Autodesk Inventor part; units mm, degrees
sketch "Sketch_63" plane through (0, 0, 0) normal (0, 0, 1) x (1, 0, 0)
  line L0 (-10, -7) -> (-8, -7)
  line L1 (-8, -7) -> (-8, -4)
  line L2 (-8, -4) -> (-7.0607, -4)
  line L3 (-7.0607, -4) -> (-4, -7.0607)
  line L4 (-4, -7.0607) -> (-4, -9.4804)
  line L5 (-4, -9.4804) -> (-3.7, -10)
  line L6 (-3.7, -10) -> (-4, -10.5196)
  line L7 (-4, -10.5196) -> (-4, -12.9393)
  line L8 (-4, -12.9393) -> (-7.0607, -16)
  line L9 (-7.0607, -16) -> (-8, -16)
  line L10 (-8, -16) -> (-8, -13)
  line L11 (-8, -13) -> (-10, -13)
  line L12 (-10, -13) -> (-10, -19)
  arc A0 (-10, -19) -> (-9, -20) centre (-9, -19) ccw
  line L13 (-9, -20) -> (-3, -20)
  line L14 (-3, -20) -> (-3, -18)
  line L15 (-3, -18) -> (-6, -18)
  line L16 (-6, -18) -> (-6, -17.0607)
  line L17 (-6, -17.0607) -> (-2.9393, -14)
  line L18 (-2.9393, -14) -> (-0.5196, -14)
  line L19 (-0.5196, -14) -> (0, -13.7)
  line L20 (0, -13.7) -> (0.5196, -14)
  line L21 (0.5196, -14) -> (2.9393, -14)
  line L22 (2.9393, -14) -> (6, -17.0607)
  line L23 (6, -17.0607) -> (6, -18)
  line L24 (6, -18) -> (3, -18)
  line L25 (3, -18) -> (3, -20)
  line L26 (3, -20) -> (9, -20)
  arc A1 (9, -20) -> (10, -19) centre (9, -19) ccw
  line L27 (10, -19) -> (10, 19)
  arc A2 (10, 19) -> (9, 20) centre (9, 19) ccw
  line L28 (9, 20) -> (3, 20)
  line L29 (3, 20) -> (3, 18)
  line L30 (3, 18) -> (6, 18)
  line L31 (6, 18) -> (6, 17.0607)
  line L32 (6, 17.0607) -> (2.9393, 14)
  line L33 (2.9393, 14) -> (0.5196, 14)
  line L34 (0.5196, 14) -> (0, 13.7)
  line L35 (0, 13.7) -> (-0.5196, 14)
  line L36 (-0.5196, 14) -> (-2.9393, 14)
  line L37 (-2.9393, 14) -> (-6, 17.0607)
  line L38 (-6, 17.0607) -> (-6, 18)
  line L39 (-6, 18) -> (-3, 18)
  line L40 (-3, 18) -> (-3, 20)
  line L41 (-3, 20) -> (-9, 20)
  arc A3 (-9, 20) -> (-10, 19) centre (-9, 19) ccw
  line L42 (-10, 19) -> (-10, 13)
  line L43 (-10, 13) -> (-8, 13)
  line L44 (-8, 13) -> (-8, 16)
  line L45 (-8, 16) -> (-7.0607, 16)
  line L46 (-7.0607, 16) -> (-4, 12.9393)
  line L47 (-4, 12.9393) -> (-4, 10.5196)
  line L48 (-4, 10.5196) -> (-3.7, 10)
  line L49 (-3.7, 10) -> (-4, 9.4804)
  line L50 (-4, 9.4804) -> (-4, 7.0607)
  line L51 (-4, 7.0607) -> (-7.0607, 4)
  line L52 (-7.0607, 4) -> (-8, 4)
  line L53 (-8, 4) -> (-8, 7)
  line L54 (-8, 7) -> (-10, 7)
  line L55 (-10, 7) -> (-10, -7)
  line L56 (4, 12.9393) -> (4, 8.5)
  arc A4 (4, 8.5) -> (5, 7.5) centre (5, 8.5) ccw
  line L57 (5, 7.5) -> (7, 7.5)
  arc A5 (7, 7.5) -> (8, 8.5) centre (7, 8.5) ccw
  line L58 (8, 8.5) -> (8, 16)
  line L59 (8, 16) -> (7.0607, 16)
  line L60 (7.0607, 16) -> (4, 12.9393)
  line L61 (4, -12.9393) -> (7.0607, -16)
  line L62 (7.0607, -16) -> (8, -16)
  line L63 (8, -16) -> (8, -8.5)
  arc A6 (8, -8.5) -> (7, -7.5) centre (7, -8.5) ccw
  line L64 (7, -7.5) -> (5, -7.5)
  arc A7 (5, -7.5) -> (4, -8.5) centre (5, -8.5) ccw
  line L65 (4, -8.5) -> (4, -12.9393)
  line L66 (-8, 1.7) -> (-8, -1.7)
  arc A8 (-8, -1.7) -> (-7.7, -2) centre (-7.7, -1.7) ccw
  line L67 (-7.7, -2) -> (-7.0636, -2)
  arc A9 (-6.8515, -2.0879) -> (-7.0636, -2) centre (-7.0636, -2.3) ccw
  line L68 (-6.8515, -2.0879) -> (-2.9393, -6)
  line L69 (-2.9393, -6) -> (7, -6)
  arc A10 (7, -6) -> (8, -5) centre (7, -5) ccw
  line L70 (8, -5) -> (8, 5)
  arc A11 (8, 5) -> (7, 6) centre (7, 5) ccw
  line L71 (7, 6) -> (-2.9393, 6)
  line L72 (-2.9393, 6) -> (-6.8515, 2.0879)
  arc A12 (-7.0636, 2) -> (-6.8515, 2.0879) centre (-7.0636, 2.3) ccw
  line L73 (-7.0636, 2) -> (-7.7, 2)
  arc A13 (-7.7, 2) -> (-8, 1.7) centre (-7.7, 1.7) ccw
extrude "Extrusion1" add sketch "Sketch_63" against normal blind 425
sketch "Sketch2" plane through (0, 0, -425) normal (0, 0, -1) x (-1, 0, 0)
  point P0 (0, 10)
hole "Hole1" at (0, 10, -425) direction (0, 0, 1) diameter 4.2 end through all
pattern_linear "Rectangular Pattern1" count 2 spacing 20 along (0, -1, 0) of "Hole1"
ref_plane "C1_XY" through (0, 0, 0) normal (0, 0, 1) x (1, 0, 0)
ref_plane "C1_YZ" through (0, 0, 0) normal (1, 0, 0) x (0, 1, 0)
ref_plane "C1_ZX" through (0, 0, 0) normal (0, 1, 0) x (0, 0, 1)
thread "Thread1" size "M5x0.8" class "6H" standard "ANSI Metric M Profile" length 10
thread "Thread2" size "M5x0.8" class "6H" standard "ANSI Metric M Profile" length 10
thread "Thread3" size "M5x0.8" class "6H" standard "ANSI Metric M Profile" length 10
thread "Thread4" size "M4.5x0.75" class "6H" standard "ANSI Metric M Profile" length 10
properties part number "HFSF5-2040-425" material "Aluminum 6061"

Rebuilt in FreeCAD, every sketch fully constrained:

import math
import FreeCAD as App
import Part
import Sketcher
Q = App.Units.Quantity

doc = App.newDocument("Part")
body = doc.addObject("PartDesign::Body", "Body")

sketch1 = body.newObject("Sketcher::SketchObject", "Sketch")
sketch1.AttachmentSupport = (doc.getObject("XY_Plane"), [""])
sketch1.MapMode = "FlatFace"
sketch1.addGeometry(Part.LineSegment(App.Vector(-10, 7, 0), App.Vector(-10, -7, 0)), False)
sketch1.addGeometry(Part.LineSegment(App.Vector(-10, -7, 0), App.Vector(-8, -7, 0)), False)
sketch1.addGeometry(Part.LineSegment(App.Vector(-8, -7, 0), App.Vector(-8, -4, 0)), False)
sketch1.addGeometry(Part.LineSegment(App.Vector(-8, -4, 0), App.Vector(-7.06, -4, 0)), False)
sketch1.addGeometry(Part.LineSegment(App.Vector(-7.06, -4, 0), App.Vector(-4, -7.06, 0)), False)
sketch1.addGeometry(Part.LineSegment(App.Vector(-4, -7.06, 0), App.Vector(-4, -9.48, 0)), False)
sketch1.addGeometry(Part.LineSegment(App.Vector(-4, -9.48, 0), App.Vector(-3.7, -10, 0)), False)
sketch1.addGeometry(Part.LineSegment(App.Vector(-3.7, -10, 0), App.Vector(-4, -10.52, 0)), False)
sketch1.addGeometry(Part.LineSegment(App.Vector(-4, -10.52, 0), App.Vector(-4, -12.94, 0)), False)
sketch1.addGeometry(Part.LineSegment(App.Vector(-4, -12.94, 0), App.Vector(-7.06, -16, 0)), False)
sketch1.addGeometry(Part.LineSegment(App.Vector(-7.06, -16, 0), App.Vector(-8, -16, 0)), False)
sketch1.addGeometry(Part.LineSegment(App.Vector(-8, -16, 0), App.Vector(-8, -13, 0)), False)
sketch1.addGeometry(Part.LineSegment(App.Vector(-8, -13, 0), App.Vector(-10, -13, 0)), False)
sketch1.addGeometry(Part.LineSegment(App.Vector(-10, -13, 0), App.Vector(-10, -19, 0)), False)
sketch1.addGeometry(Part.ArcOfCircle(Part.Circle(App.Vector(-9, -19, 0), App.Vector(0, 0, 1), 1), math.radians(180), math.radians(270)), False)
sketch1.addGeometry(Part.LineSegment(App.Vector(-9, -20, 0), App.Vector(-3, -20, 0)), False)
sketch1.addGeometry(Part.LineSegment(App.Vector(-3, -20, 0), App.Vector(-3, -18, 0)), False)
sketch1.addGeometry(Part.LineSegment(App.Vector(-3, -18, 0), App.Vector(-6, -18, 0)), False)
sketch1.addGeometry(Part.LineSegment(App.Vector(-6, -18, 0), App.Vector(-6, -17.06, 0)), False)
sketch1.addGeometry(Part.LineSegment(App.Vector(-6, -17.06, 0), App.Vector(-2.94, -14, 0)), False)
sketch1.addGeometry(Part.LineSegment(App.Vector(-2.94, -14, 0), App.Vector(-0.52, -14, 0)), False)
sketch1.addGeometry(Part.LineSegment(App.Vector(-0.52, -14, 0), App.Vector(0, -13.7, 0)), False)
sketch1.addGeometry(Part.LineSegment(App.Vector(0, -13.7, 0), App.Vector(0.52, -14, 0)), False)
sketch1.addGeometry(Part.LineSegment(App.Vector(0.52, -14, 0), App.Vector(2.94, -14, 0)), False)
sketch1.addGeometry(Part.LineSegment(App.Vector(2.94, -14, 0), App.Vector(6, -17.06, 0)), False)
sketch1.addGeometry(Part.LineSegment(App.Vector(6, -17.06, 0), App.Vector(6, -18, 0)), False)
sketch1.addGeometry(Part.LineSegment(App.Vector(6, -18, 0), App.Vector(3, -18, 0)), False)
sketch1.addGeometry(Part.LineSegment(App.Vector(3, -18, 0), App.Vector(3, -20, 0)), False)
sketch1.addGeometry(Part.LineSegment(App.Vector(3, -20, 0), App.Vector(9, -20, 0)), False)
sketch1.addGeometry(Part.ArcOfCircle(Part.Circle(App.Vector(9, -19, 0), App.Vector(0, 0, 1), 1), math.radians(-90), math.radians(0)), False)
sketch1.addGeometry(Part.LineSegment(App.Vector(10, -19, 0), App.Vector(10, 19, 0)), False)
sketch1.addGeometry(Part.ArcOfCircle(Part.Circle(App.Vector(9, 19, 0), App.Vector(0, 0, 1), 1), math.radians(0), math.radians(90)), False)
sketch1.addGeometry(Part.LineSegment(App.Vector(9, 20, 0), App.Vector(3, 20, 0)), False)
sketch1.addGeometry(Part.LineSegment(App.Vector(3, 20, 0), App.Vector(3, 18, 0)), False)
sketch1.addGeometry(Part.LineSegment(App.Vector(3, 18, 0), App.Vector(6, 18, 0)), False)
sketch1.addGeometry(Part.LineSegment(App.Vector(6, 18, 0), App.Vector(6, 17.06, 0)), False)
sketch1.addGeometry(Part.LineSegment(App.Vector(6, 17.06, 0), App.Vector(2.94, 14, 0)), False)
sketch1.addGeometry(Part.LineSegment(App.Vector(2.94, 14, 0), App.Vector(0.52, 14, 0)), False)
sketch1.addGeometry(Part.LineSegment(App.Vector(0.52, 14, 0), App.Vector(0, 13.7, 0)), False)
sketch1.addGeometry(Part.LineSegment(App.Vector(0, 13.7, 0), App.Vector(-0.52, 14, 0)), False)
sketch1.addGeometry(Part.LineSegment(App.Vector(-0.52, 14, 0), App.Vector(-2.94, 14, 0)), False)
sketch1.addGeometry(Part.LineSegment(App.Vector(-2.94, 14, 0), App.Vector(-6, 17.06, 0)), False)
sketch1.addGeometry(Part.LineSegment(App.Vector(-6, 17.06, 0), App.Vector(-6, 18, 0)), False)
sketch1.addGeometry(Part.LineSegment(App.Vector(-6, 18, 0), App.Vector(-3, 18, 0)), False)
sketch1.addGeometry(Part.LineSegment(App.Vector(-3, 18, 0), App.Vector(-3, 20, 0)), False)
sketch1.addGeometry(Part.LineSegment(App.Vector(-3, 20, 0), App.Vector(-9, 20, 0)), False)
sketch1.addGeometry(Part.ArcOfCircle(Part.Circle(App.Vector(-9, 19, 0), App.Vector(0, 0, 1), 1), math.radians(90), math.radians(180)), False)
sketch1.addGeometry(Part.LineSegment(App.Vector(-10, 19, 0), App.Vector(-10, 13, 0)), False)
sketch1.addGeometry(Part.LineSegment(App.Vector(-10, 13, 0), App.Vector(-8, 13, 0)), False)
sketch1.addGeometry(Part.LineSegment(App.Vector(-8, 13, 0), App.Vector(-8, 16, 0)), False)
sketch1.addGeometry(Part.LineSegment(App.Vector(-8, 16, 0), App.Vector(-7.06, 16, 0)), False)
sketch1.addGeometry(Part.LineSegment(App.Vector(-7.06, 16, 0), App.Vector(-4, 12.94, 0)), False)
sketch1.addGeometry(Part.LineSegment(App.Vector(-4, 12.94, 0), App.Vector(-4, 10.52, 0)), False)
sketch1.addGeometry(Part.LineSegment(App.Vector(-4, 10.52, 0), App.Vector(-3.7, 10, 0)), False)
sketch1.addGeometry(Part.LineSegment(App.Vector(-3.7, 10, 0), App.Vector(-4, 9.48, 0)), False)
sketch1.addGeometry(Part.LineSegment(App.Vector(-4, 9.48, 0), App.Vector(-4, 7.06, 0)), False)
sketch1.addGeometry(Part.LineSegment(App.Vector(-4, 7.06, 0), App.Vector(-7.06, 4, 0)), False)
sketch1.addGeometry(Part.LineSegment(App.Vector(-7.06, 4, 0), App.Vector(-8, 4, 0)), False)
sketch1.addGeometry(Part.LineSegment(App.Vector(-8, 4, 0), App.Vector(-8, 7, 0)), False)
sketch1.addGeometry(Part.LineSegment(App.Vector(-8, 7, 0), App.Vector(-10, 7, 0)), False)
sketch1.addGeometry(Part.LineSegment(App.Vector(7.06, -16, 0), App.Vector(4, -12.94, 0)), False)
sketch1.addGeometry(Part.LineSegment(App.Vector(4, -12.94, 0), App.Vector(4, -8.5, 0)), False)
sketch1.addGeometry(Part.ArcOfCircle(Part.Circle(App.Vector(5, -8.5, 0), App.Vector(0, 0, 1), 1), math.radians(90), math.radians(180)), False)
sketch1.addGeometry(Part.LineSegment(App.Vector(5, -7.5, 0), App.Vector(7, -7.5, 0)), False)
sketch1.addGeometry(Part.ArcOfCircle(Part.Circle(App.Vector(7, -8.5, 0), App.Vector(0, 0, 1), 1), math.radians(0), math.radians(90)), False)
sketch1.addGeometry(Part.LineSegment(App.Vector(8, -8.5, 0), App.Vector(8, -16, 0)), False)
sketch1.addGeometry(Part.LineSegment(App.Vector(8, -16, 0), App.Vector(7.06, -16, 0)), False)
sketch1.addGeometry(Part.LineSegment(App.Vector(-8, -1.7, 0), App.Vector(-8, 1.7, 0)), False)
sketch1.addGeometry(Part.ArcOfCircle(Part.Circle(App.Vector(-7.7, 1.7, 0), App.Vector(0, 0, 1), 0.3), math.radians(90), math.radians(180)), False)
sketch1.addGeometry(Part.LineSegment(App.Vector(-7.7, 2, 0), App.Vector(-7.06, 2, 0)), False)
sketch1.addGeometry(Part.ArcOfCircle(Part.Circle(App.Vector(-7.06, 2.3, 0), App.Vector(0, 0, 1), 0.3), math.radians(-90), math.radians(-45)), False)
sketch1.addGeometry(Part.LineSegment(App.Vector(-6.85, 2.09, 0), App.Vector(-2.94, 6, 0)), False)
sketch1.addGeometry(Part.LineSegment(App.Vector(-2.94, 6, 0), App.Vector(7, 6, 0)), False)
sketch1.addGeometry(Part.ArcOfCircle(Part.Circle(App.Vector(7, 5, 0), App.Vector(0, 0, 1), 1), math.radians(0), math.radians(90)), False)
sketch1.addGeometry(Part.LineSegment(App.Vector(8, 5, 0), App.Vector(8, -5, 0)), False)
sketch1.addGeometry(Part.ArcOfCircle(Part.Circle(App.Vector(7, -5, 0), App.Vector(0, 0, 1), 1), math.radians(-90), math.radians(0)), False)
sketch1.addGeometry(Part.LineSegment(App.Vector(7, -6, 0), App.Vector(-2.94, -6, 0)), False)
sketch1.addGeometry(Part.LineSegment(App.Vector(-2.94, -6, 0), App.Vector(-6.85, -2.09, 0)), False)
sketch1.addGeometry(Part.ArcOfCircle(Part.Circle(App.Vector(-7.06, -2.3, 0), App.Vector(0, 0, 1), 0.3), math.radians(45), math.radians(90)), False)
sketch1.addGeometry(Part.LineSegment(App.Vector(-7.06, -2, 0), App.Vector(-7.7, -2, 0)), False)
sketch1.addGeometry(Part.ArcOfCircle(Part.Circle(App.Vector(-7.7, -1.7, 0), App.Vector(0, 0, 1), 0.3), math.radians(180), math.radians(270)), False)
sketch1.addGeometry(Part.LineSegment(App.Vector(4, 8.5, 0), App.Vector(4, 12.94, 0)), False)
sketch1.addGeometry(Part.LineSegment(App.Vector(4, 12.94, 0), App.Vector(7.06, 16, 0)), False)
sketch1.addGeometry(Part.LineSegment(App.Vector(7.06, 16, 0), App.Vector(8, 16, 0)), False)
sketch1.addGeometry(Part.LineSegment(App.Vector(8, 16, 0), App.Vector(8, 8.5, 0)), False)
sketch1.addGeometry(Part.ArcOfCircle(Part.Circle(App.Vector(7, 8.5, 0), App.Vector(0, 0, 1), 1), math.radians(-90), math.radians(0)), False)
sketch1.addGeometry(Part.LineSegment(App.Vector(7, 7.5, 0), App.Vector(5, 7.5, 0)), False)
sketch1.addGeometry(Part.ArcOfCircle(Part.Circle(App.Vector(5, 8.5, 0), App.Vector(0, 0, 1), 1), math.radians(180), math.radians(270)), False)
sketch1.addConstraint(Sketcher.Constraint("Coincident", 0, 2, 1, 1))
sketch1.addConstraint(Sketcher.Constraint("Coincident", 1, 2, 2, 1))
sketch1.addConstraint(Sketcher.Constraint("Coincident", 2, 2, 3, 1))
sketch1.addConstraint(Sketcher.Constraint("Coincident", 3, 2, 4, 1))
sketch1.addConstraint(Sketcher.Constraint("Coincident", 4, 2, 5, 1))
sketch1.addConstraint(Sketcher.Constraint("Coincident", 5, 2, 6, 1))
sketch1.addConstraint(Sketcher.Constraint("Coincident", 6, 2, 7, 1))
sketch1.addConstraint(Sketcher.Constraint("Coincident", 7, 2, 8, 1))
sketch1.addConstraint(Sketcher.Constraint("Coincident", 8, 2, 9, 1))
sketch1.addConstraint(Sketcher.Constraint("Coincident", 9, 2, 10, 1))
sketch1.addConstraint(Sketcher.Constraint("Coincident", 10, 2, 11, 1))
sketch1.addConstraint(Sketcher.Constraint("Coincident", 11, 2, 12, 1))
sketch1.addConstraint(Sketcher.Constraint("Coincident", 12, 2, 13, 1))
sketch1.addConstraint(Sketcher.Constraint("Tangent", 13, 2, 14, 1))
sketch1.addConstraint(Sketcher.Constraint("Tangent", 14, 2, 15, 1))
sketch1.addConstraint(Sketcher.Constraint("Coincident", 15, 2, 16, 1))
sketch1.addConstraint(Sketcher.Constraint("Coincident", 16, 2, 17, 1))
sketch1.addConstraint(Sketcher.Constraint("Coincident", 17, 2, 18, 1))
sketch1.addConstraint(Sketcher.Constraint("Coincident", 18, 2, 19, 1))
sketch1.addConstraint(Sketcher.Constraint("Coincident", 19, 2, 20, 1))
sketch1.addConstraint(Sketcher.Constraint("Coincident", 20, 2, 21, 1))
sketch1.addConstraint(Sketcher.Constraint("Coincident", 21, 2, 22, 1))
sketch1.addConstraint(Sketcher.Constraint("Coincident", 22, 2, 23, 1))
sketch1.addConstraint(Sketcher.Constraint("Coincident", 23, 2, 24, 1))
sketch1.addConstraint(Sketcher.Constraint("Coincident", 24, 2, 25, 1))
sketch1.addConstraint(Sketcher.Constraint("Coincident", 25, 2, 26, 1))
sketch1.addConstraint(Sketcher.Constraint("Coincident", 26, 2, 27, 1))
sketch1.addConstraint(Sketcher.Constraint("Coincident", 27, 2, 28, 1))
sketch1.addConstraint(Sketcher.Constraint("Tangent", 28, 2, 29, 1))
sketch1.addConstraint(Sketcher.Constraint("Tangent", 29, 2, 30, 1))
sketch1.addConstraint(Sketcher.Constraint("Tangent", 30, 2, 31, 1))
sketch1.addConstraint(Sketcher.Constraint("Tangent", 31, 2, 32, 1))
sketch1.addConstraint(Sketcher.Constraint("Coincident", 32, 2, 33, 1))
sketch1.addConstraint(Sketcher.Constraint("Coincident", 33, 2, 34, 1))
sketch1.addConstraint(Sketcher.Constraint("Coincident", 34, 2, 35, 1))
sketch1.addConstraint(Sketcher.Constraint("Coincident", 35, 2, 36, 1))
sketch1.addConstraint(Sketcher.Constraint("Coincident", 36, 2, 37, 1))
sketch1.addConstraint(Sketcher.Constraint("Coincident", 37, 2, 38, 1))
sketch1.addConstraint(Sketcher.Constraint("Coincident", 38, 2, 39, 1))
sketch1.addConstraint(Sketcher.Constraint("Coincident", 39, 2, 40, 1))
sketch1.addConstraint(Sketcher.Constraint("Coincident", 40, 2, 41, 1))
sketch1.addConstraint(Sketcher.Constraint("Coincident", 41, 2, 42, 1))
sketch1.addConstraint(Sketcher.Constraint("Coincident", 42, 2, 43, 1))
sketch1.addConstraint(Sketcher.Constraint("Coincident", 43, 2, 44, 1))
sketch1.addConstraint(Sketcher.Constraint("Coincident", 44, 2, 45, 1))
sketch1.addConstraint(Sketcher.Constraint("Tangent", 45, 2, 46, 1))
sketch1.addConstraint(Sketcher.Constraint("Tangent", 46, 2, 47, 1))
sketch1.addConstraint(Sketcher.Constraint("Coincident", 47, 2, 48, 1))
sketch1.addConstraint(Sketcher.Constraint("Coincident", 48, 2, 49, 1))
sketch1.addConstraint(Sketcher.Constraint("Coincident", 49, 2, 50, 1))
sketch1.addConstraint(Sketcher.Constraint("Coincident", 50, 2, 51, 1))
sketch1.addConstraint(Sketcher.Constraint("Coincident", 51, 2, 52, 1))
sketch1.addConstraint(Sketcher.Constraint("Coincident", 52, 2, 53, 1))
sketch1.addConstraint(Sketcher.Constraint("Coincident", 53, 2, 54, 1))
sketch1.addConstraint(Sketcher.Constraint("Coincident", 54, 2, 55, 1))
sketch1.addConstraint(Sketcher.Constraint("Coincident", 55, 2, 56, 1))
sketch1.addConstraint(Sketcher.Constraint("Coincident", 56, 2, 57, 1))
sketch1.addConstraint(Sketcher.Constraint("Coincident", 57, 2, 58, 1))
sketch1.addConstraint(Sketcher.Constraint("Coincident", 58, 2, 59, 1))
sketch1.addConstraint(Sketcher.Constraint("Coincident", 59, 2, 0, 1))
sketch1.addConstraint(Sketcher.Constraint("Coincident", 60, 2, 61, 1))
sketch1.addConstraint(Sketcher.Constraint("Tangent", 61, 2, 62, 2))
sketch1.addConstraint(Sketcher.Constraint("Tangent", 62, 1, 63, 1))
sketch1.addConstraint(Sketcher.Constraint("Tangent", 63, 2, 64, 2))
sketch1.addConstraint(Sketcher.Constraint("Tangent", 64, 1, 65, 1))
sketch1.addConstraint(Sketcher.Constraint("Coincident", 65, 2, 66, 1))
sketch1.addConstraint(Sketcher.Constraint("Coincident", 66, 2, 60, 1))
sketch1.addConstraint(Sketcher.Constraint("Tangent", 67, 2, 68, 2))
sketch1.addConstraint(Sketcher.Constraint("Tangent", 68, 1, 69, 1))
sketch1.addConstraint(Sketcher.Constraint("Tangent", 69, 2, 70, 1))
sketch1.addConstraint(Sketcher.Constraint("Tangent", 70, 2, 71, 1))
sketch1.addConstraint(Sketcher.Constraint("Coincident", 71, 2, 72, 1))
sketch1.addConstraint(Sketcher.Constraint("Tangent", 72, 2, 73, 2))
sketch1.addConstraint(Sketcher.Constraint("Tangent", 73, 1, 74, 1))
sketch1.addConstraint(Sketcher.Constraint("Tangent", 74, 2, 75, 2))
sketch1.addConstraint(Sketcher.Constraint("Tangent", 75, 1, 76, 1))
sketch1.addConstraint(Sketcher.Constraint("Coincident", 76, 2, 77, 1))
sketch1.addConstraint(Sketcher.Constraint("Tangent", 77, 2, 78, 1))
sketch1.addConstraint(Sketcher.Constraint("Tangent", 78, 2, 79, 1))
sketch1.addConstraint(Sketcher.Constraint("Tangent", 79, 2, 80, 2))
sketch1.addConstraint(Sketcher.Constraint("Tangent", 80, 1, 67, 1))
sketch1.addConstraint(Sketcher.Constraint("Coincident", 81, 2, 82, 1))
sketch1.addConstraint(Sketcher.Constraint("Coincident", 82, 2, 83, 1))
sketch1.addConstraint(Sketcher.Constraint("Coincident", 83, 2, 84, 1))
sketch1.addConstraint(Sketcher.Constraint("Tangent", 84, 2, 85, 2))
sketch1.addConstraint(Sketcher.Constraint("Tangent", 85, 1, 86, 1))
sketch1.addConstraint(Sketcher.Constraint("Tangent", 86, 2, 87, 2))
sketch1.addConstraint(Sketcher.Constraint("Tangent", 87, 1, 81, 1))
sketch1.addConstraint(Sketcher.Constraint("Vertical", 0))
sketch1.addConstraint(Sketcher.Constraint("Horizontal", 1))
sketch1.addConstraint(Sketcher.Constraint("Vertical", 2))
sketch1.addConstraint(Sketcher.Constraint("Horizontal", 3))
sketch1.addConstraint(Sketcher.Constraint("Vertical", 5))
sketch1.addConstraint(Sketcher.Constraint("Vertical", 8))
sketch1.addConstraint(Sketcher.Constraint("Horizontal", 10))
sketch1.addConstraint(Sketcher.Constraint("Vertical", 11))
sketch1.addConstraint(Sketcher.Constraint("Horizontal", 12))
sketch1.addConstraint(Sketcher.Constraint("Vertical", 13))
sketch1.addConstraint(Sketcher.Constraint("Horizontal", 15))
sketch1.addConstraint(Sketcher.Constraint("Vertical", 16))
sketch1.addConstraint(Sketcher.Constraint("Horizontal", 17))
sketch1.addConstraint(Sketcher.Constraint("Vertical", 18))
sketch1.addConstraint(Sketcher.Constraint("Horizontal", 20))
sketch1.addConstraint(Sketcher.Constraint("Horizontal", 23))
sketch1.addConstraint(Sketcher.Constraint("Vertical", 25))
sketch1.addConstraint(Sketcher.Constraint("Horizontal", 26))
sketch1.addConstraint(Sketcher.Constraint("Vertical", 27))
sketch1.addConstraint(Sketcher.Constraint("Horizontal", 28))
sketch1.addConstraint(Sketcher.Constraint("Vertical", 30))
sketch1.addConstraint(Sketcher.Constraint("Horizontal", 32))
sketch1.addConstraint(Sketcher.Constraint("Vertical", 33))
sketch1.addConstraint(Sketcher.Constraint("Horizontal", 34))
sketch1.addConstraint(Sketcher.Constraint("Vertical", 35))
sketch1.addConstraint(Sketcher.Constraint("Horizontal", 37))
sketch1.addConstraint(Sketcher.Constraint("Horizontal", 40))
sketch1.addConstraint(Sketcher.Constraint("Vertical", 42))
sketch1.addConstraint(Sketcher.Constraint("Horizontal", 43))
sketch1.addConstraint(Sketcher.Constraint("Vertical", 44))
sketch1.addConstraint(Sketcher.Constraint("Horizontal", 45))
sketch1.addConstraint(Sketcher.Constraint("Vertical", 47))
sketch1.addConstraint(Sketcher.Constraint("Horizontal", 48))
sketch1.addConstraint(Sketcher.Constraint("Vertical", 49))
sketch1.addConstraint(Sketcher.Constraint("Horizontal", 50))
sketch1.addConstraint(Sketcher.Constraint("Vertical", 52))
sketch1.addConstraint(Sketcher.Constraint("Vertical", 55))
sketch1.addConstraint(Sketcher.Constraint("Horizontal", 57))
sketch1.addConstraint(Sketcher.Constraint("Vertical", 58))
sketch1.addConstraint(Sketcher.Constraint("Horizontal", 59))
sketch1.addConstraint(Sketcher.Constraint("Vertical", 61))
sketch1.addConstraint(Sketcher.Constraint("Horizontal", 63))
sketch1.addConstraint(Sketcher.Constraint("Vertical", 65))
sketch1.addConstraint(Sketcher.Constraint("Horizontal", 66))
sketch1.addConstraint(Sketcher.Constraint("Vertical", 67))
sketch1.addConstraint(Sketcher.Constraint("Horizontal", 69))
sketch1.addConstraint(Sketcher.Constraint("Horizontal", 72))
sketch1.addConstraint(Sketcher.Constraint("Vertical", 74))
sketch1.addConstraint(Sketcher.Constraint("Horizontal", 76))
sketch1.addConstraint(Sketcher.Constraint("Horizontal", 79))
sketch1.addConstraint(Sketcher.Constraint("Vertical", 81))
sketch1.addConstraint(Sketcher.Constraint("Horizontal", 83))
sketch1.addConstraint(Sketcher.Constraint("Vertical", 84))
sketch1.addConstraint(Sketcher.Constraint("Horizontal", 86))
sketch1.addConstraint(Sketcher.Constraint("Equal", 14, 29))
sketch1.addConstraint(Sketcher.Constraint("Equal", 29, 31))
sketch1.addConstraint(Sketcher.Constraint("Equal", 31, 46))
sketch1.addConstraint(Sketcher.Constraint("Equal", 46, 62))
sketch1.addConstraint(Sketcher.Constraint("Equal", 62, 64))
sketch1.addConstraint(Sketcher.Constraint("Equal", 68, 70))
sketch1.addConstraint(Sketcher.Constraint("Equal", 64, 73))
sketch1.addConstraint(Sketcher.Constraint("Equal", 73, 75))
sketch1.addConstraint(Sketcher.Constraint("Equal", 70, 78))
sketch1.addConstraint(Sketcher.Constraint("Equal", 78, 80))
sketch1.addConstraint(Sketcher.Constraint("Equal", 75, 85))
sketch1.addConstraint(Sketcher.Constraint("Equal", 85, 87))
sketch1.addConstraint(Sketcher.Constraint("Symmetric", 14, 3, 31, 3, -1, 1))
sketch1.addConstraint(Sketcher.Constraint("Symmetric", 29, 3, 46, 3, -1, 1))
sketch1.addConstraint(Sketcher.Constraint("Symmetric", 16, 2, 33, 2, -1, 1))
sketch1.addConstraint(Sketcher.Constraint("Symmetric", 18, 2, 35, 2, -1, 1))
sketch1.addConstraint(Sketcher.Constraint("Symmetric", 19, 2, 36, 2, -1, 1))
sketch1.addConstraint(Sketcher.Constraint("Symmetric", 21, 2, 38, 2, -1, 1))
sketch1.addConstraint(Sketcher.Constraint("Symmetric", 22, 2, 39, 2, -1, 1))
sketch1.addConstraint(Sketcher.Constraint("Symmetric", 24, 2, 41, 2, -1, 1))
sketch1.addConstraint(Sketcher.Constraint("Symmetric", 26, 2, 43, 2, -1, 1))
sketch1.addConstraint(Sketcher.Constraint("Symmetric", 51, 2, 60, 2, -1, 1))
sketch1.addConstraint(Sketcher.Constraint("Symmetric", 49, 2, 65, 2, -1, 1))
sketch1.addConstraint(Sketcher.Constraint("Symmetric", 8, 2, 81, 2, -1, 1))
sketch1.addConstraint(Sketcher.Constraint("Symmetric", 9, 2, 82, 2, -1, 1))
sketch1.addConstraint(Sketcher.Constraint("Symmetric", 20, 2, 22, 2, -2))
sketch1.addConstraint(Sketcher.Constraint("Symmetric", 18, 2, 24, 2, -2))
sketch1.addConstraint(Sketcher.Constraint("Symmetric", 16, 2, 26, 2, -2))
sketch1.addConstraint(Sketcher.Constraint("Symmetric", 8, 2, 60, 2, -2))
sketch1.addConstraint(Sketcher.Constraint("Symmetric", 10, 2, 65, 2, -2))
sketch1.addConstraint(Sketcher.Constraint("Symmetric", 70, 3, 78, 3, -1))
sketch1.addConstraint(Sketcher.Constraint("Symmetric", 64, 3, 85, 3, -1))
sketch1.addConstraint(Sketcher.Constraint("Symmetric", 6, 2, 53, 2, -1))
sketch1.addConstraint(Sketcher.Constraint("Symmetric", 5, 2, 54, 2, -1))
sketch1.addConstraint(Sketcher.Constraint("Symmetric", 3, 2, 56, 2, -1))
sketch1.addConstraint(Sketcher.Constraint("Symmetric", 1, 2, 58, 2, -1))
sketch1.addConstraint(Sketcher.Constraint("Symmetric", 71, 2, 76, 2, -1))
sketch1.addConstraint(Sketcher.Constraint("PointOnObject", 21, 2, -2))
sketch1.addConstraint(Sketcher.Constraint("Perpendicular", 4, 9))
sketch1.addConstraint(Sketcher.Constraint("Parallel", 9, 19))
sketch1.addConstraint(Sketcher.Constraint("Perpendicular", 6, 21))
sketch1.addConstraint(Sketcher.Constraint("Perpendicular", 7, 22))
sketch1.addConstraint(Sketcher.Constraint("Perpendicular", 19, 24))
sketch1.addConstraint(Sketcher.Constraint("Parallel", 21, 38))
sketch1.addConstraint(Sketcher.Constraint("Perpendicular", 36, 41))
sketch1.addConstraint(Sketcher.Constraint("Parallel", 41, 51))
sketch1.addConstraint(Sketcher.Constraint("Perpendicular", 38, 53))
sketch1.addConstraint(Sketcher.Constraint("Perpendicular", 51, 56))
sketch1.addConstraint(Sketcher.Constraint("Perpendicular", 56, 60))
sketch1.addConstraint(Sketcher.Constraint("Perpendicular", 60, 71))
sketch1.addConstraint(Sketcher.Constraint("Perpendicular", 71, 77))
sketch1.addConstraint(Sketcher.Constraint("Horizontal", 14, 3, 29, 3))
sketch1.addConstraint(Sketcher.Constraint("Vertical", 64, 3, 73, 3))
sketch1.addConstraint(Sketcher.Constraint("Vertical", 5, 2, 7, 2))
sketch1.addConstraint(Sketcher.Constraint("Vertical", 3, 2, 9, 2))
sketch1.addConstraint(Sketcher.Constraint("Vertical", 2, 2, 10, 2))
sketch1.addConstraint(Sketcher.Constraint("Vertical", 0, 2, 12, 2))
sketch1.addConstraint(Sketcher.Constraint("Vertical", 58, 2, 67, 2))
sketch1.addConstraint(Sketcher.Constraint("Vertical", 40, 2, 71, 2))
sketch1.addConstraint(Sketcher.Constraint("Equal", 59, 63))
sketch1.addConstraint(Sketcher.Constraint("Equal", 43, 2))
sketch1.addConstraint(Sketcher.Constraint("Equal", 40, 5))
sketch1.addConstraint(Sketcher.Constraint("Equal", 5, 8))
sketch1.addConstraint(Sketcher.Constraint("Equal", 2, 11))
sketch1.addConstraint(Sketcher.Constraint("Equal", 45, 13))
sketch1.addConstraint(Sketcher.Constraint("Equal", 86, 16))
sketch1.addConstraint(Sketcher.Constraint("Equal", 83, 18))
sketch1.addConstraint(Sketcher.Constraint("Equal", 13, 47))
sketch1.addConstraint(Sketcher.Constraint("Equal", 9, 19))
sketch1.addConstraint(Sketcher.Constraint("Equal", 7, 21))
sketch1.addConstraint(Sketcher.Constraint("Radius", 14, Q("1 mm")))
sketch1.addConstraint(Sketcher.Constraint("Radius", 68, Q("0.3 mm")))
sketch1.addConstraint(Sketcher.Constraint("DistanceX", 1, 1, 1, 2, Q("2 mm")))
sketch1.addConstraint(Sketcher.Constraint("DistanceX", 15, 1, 15, 2, Q("6 mm")))
sketch1.addConstraint(Sketcher.Constraint("DistanceX", 17, 2, 17, 1, Q("3 mm")))
sketch1.addConstraint(Sketcher.Constraint("DistanceY", 0, 2, 0, 1, Q("14 mm")))
sketch1.addConstraint(Sketcher.Constraint("DistanceY", 30, 1, 30, 2, Q("38 mm")))
sketch1.addConstraint(Sketcher.Constraint("DistanceY", 74, 2, 74, 1, Q("10 mm")))
sketch1.addConstraint(Sketcher.Constraint("Angle", 6, Q("-59.9993 deg")))
sketch1.addConstraint(Sketcher.Constraint("DistanceY", 65, 2, 65, 1, Q("7.5 mm")))
sketch1.addConstraint(Sketcher.Constraint("DistanceY", 67, 1, 67, 2, Q("3.4 mm")))
sketch1.addConstraint(Sketcher.Constraint("Distance", 6, Q("0.6 mm")))
sketch1.addConstraint(Sketcher.Constraint("DistanceX", 3, 1, 3, 2, Q("0.9393 mm")))
pad1 = body.newObject("PartDesign::Pad", "Pad")
pad1.Profile = sketch1
pad1.Length = 425
pad1.Reversed = True

sketch2 = body.newObject("Sketcher::SketchObject", "Sketch001")
sketch2.AttachmentSupport = (doc.getObject("XY_Plane"), [""])
sketch2.MapMode = "FlatFace"
sketch2.AttachmentOffset = App.Placement(App.Vector(0, 0, -425), App.Rotation())
sketch2.addGeometry(Part.Circle(App.Vector(0, 10, 0), App.Vector(0, 0, 1), 2.1), False)
sketch2.addConstraint(Sketcher.Constraint("PointOnObject", 0, 3, -2))
sketch2.addConstraint(Sketcher.Constraint("Diameter", 0, Q("4.2 mm")))
sketch2.addConstraint(Sketcher.Constraint("DistanceY", -1, 1, 0, 3, Q("10 mm")))
doc.recompute()
hole = body.newObject("PartDesign::Hole", "Hole")
hole.Profile = sketch2
hole.ThreadType = "None"
hole.Diameter = 4.2
hole.DepthType = "ThroughAll"
hole.Reversed = True
doc.recompute()

linearpattern = body.newObject("PartDesign::LinearPattern", "LinearPattern")
linearpattern.Originals = [hole]
linearpattern.Direction = (doc.getObject("Y_Axis"), [""])
linearpattern.Mode = "offset"
linearpattern.Offset = 20
linearpattern.Occurrences = 2
linearpattern.Reversed = True
body.Tip = linearpattern

doc.recompute()
